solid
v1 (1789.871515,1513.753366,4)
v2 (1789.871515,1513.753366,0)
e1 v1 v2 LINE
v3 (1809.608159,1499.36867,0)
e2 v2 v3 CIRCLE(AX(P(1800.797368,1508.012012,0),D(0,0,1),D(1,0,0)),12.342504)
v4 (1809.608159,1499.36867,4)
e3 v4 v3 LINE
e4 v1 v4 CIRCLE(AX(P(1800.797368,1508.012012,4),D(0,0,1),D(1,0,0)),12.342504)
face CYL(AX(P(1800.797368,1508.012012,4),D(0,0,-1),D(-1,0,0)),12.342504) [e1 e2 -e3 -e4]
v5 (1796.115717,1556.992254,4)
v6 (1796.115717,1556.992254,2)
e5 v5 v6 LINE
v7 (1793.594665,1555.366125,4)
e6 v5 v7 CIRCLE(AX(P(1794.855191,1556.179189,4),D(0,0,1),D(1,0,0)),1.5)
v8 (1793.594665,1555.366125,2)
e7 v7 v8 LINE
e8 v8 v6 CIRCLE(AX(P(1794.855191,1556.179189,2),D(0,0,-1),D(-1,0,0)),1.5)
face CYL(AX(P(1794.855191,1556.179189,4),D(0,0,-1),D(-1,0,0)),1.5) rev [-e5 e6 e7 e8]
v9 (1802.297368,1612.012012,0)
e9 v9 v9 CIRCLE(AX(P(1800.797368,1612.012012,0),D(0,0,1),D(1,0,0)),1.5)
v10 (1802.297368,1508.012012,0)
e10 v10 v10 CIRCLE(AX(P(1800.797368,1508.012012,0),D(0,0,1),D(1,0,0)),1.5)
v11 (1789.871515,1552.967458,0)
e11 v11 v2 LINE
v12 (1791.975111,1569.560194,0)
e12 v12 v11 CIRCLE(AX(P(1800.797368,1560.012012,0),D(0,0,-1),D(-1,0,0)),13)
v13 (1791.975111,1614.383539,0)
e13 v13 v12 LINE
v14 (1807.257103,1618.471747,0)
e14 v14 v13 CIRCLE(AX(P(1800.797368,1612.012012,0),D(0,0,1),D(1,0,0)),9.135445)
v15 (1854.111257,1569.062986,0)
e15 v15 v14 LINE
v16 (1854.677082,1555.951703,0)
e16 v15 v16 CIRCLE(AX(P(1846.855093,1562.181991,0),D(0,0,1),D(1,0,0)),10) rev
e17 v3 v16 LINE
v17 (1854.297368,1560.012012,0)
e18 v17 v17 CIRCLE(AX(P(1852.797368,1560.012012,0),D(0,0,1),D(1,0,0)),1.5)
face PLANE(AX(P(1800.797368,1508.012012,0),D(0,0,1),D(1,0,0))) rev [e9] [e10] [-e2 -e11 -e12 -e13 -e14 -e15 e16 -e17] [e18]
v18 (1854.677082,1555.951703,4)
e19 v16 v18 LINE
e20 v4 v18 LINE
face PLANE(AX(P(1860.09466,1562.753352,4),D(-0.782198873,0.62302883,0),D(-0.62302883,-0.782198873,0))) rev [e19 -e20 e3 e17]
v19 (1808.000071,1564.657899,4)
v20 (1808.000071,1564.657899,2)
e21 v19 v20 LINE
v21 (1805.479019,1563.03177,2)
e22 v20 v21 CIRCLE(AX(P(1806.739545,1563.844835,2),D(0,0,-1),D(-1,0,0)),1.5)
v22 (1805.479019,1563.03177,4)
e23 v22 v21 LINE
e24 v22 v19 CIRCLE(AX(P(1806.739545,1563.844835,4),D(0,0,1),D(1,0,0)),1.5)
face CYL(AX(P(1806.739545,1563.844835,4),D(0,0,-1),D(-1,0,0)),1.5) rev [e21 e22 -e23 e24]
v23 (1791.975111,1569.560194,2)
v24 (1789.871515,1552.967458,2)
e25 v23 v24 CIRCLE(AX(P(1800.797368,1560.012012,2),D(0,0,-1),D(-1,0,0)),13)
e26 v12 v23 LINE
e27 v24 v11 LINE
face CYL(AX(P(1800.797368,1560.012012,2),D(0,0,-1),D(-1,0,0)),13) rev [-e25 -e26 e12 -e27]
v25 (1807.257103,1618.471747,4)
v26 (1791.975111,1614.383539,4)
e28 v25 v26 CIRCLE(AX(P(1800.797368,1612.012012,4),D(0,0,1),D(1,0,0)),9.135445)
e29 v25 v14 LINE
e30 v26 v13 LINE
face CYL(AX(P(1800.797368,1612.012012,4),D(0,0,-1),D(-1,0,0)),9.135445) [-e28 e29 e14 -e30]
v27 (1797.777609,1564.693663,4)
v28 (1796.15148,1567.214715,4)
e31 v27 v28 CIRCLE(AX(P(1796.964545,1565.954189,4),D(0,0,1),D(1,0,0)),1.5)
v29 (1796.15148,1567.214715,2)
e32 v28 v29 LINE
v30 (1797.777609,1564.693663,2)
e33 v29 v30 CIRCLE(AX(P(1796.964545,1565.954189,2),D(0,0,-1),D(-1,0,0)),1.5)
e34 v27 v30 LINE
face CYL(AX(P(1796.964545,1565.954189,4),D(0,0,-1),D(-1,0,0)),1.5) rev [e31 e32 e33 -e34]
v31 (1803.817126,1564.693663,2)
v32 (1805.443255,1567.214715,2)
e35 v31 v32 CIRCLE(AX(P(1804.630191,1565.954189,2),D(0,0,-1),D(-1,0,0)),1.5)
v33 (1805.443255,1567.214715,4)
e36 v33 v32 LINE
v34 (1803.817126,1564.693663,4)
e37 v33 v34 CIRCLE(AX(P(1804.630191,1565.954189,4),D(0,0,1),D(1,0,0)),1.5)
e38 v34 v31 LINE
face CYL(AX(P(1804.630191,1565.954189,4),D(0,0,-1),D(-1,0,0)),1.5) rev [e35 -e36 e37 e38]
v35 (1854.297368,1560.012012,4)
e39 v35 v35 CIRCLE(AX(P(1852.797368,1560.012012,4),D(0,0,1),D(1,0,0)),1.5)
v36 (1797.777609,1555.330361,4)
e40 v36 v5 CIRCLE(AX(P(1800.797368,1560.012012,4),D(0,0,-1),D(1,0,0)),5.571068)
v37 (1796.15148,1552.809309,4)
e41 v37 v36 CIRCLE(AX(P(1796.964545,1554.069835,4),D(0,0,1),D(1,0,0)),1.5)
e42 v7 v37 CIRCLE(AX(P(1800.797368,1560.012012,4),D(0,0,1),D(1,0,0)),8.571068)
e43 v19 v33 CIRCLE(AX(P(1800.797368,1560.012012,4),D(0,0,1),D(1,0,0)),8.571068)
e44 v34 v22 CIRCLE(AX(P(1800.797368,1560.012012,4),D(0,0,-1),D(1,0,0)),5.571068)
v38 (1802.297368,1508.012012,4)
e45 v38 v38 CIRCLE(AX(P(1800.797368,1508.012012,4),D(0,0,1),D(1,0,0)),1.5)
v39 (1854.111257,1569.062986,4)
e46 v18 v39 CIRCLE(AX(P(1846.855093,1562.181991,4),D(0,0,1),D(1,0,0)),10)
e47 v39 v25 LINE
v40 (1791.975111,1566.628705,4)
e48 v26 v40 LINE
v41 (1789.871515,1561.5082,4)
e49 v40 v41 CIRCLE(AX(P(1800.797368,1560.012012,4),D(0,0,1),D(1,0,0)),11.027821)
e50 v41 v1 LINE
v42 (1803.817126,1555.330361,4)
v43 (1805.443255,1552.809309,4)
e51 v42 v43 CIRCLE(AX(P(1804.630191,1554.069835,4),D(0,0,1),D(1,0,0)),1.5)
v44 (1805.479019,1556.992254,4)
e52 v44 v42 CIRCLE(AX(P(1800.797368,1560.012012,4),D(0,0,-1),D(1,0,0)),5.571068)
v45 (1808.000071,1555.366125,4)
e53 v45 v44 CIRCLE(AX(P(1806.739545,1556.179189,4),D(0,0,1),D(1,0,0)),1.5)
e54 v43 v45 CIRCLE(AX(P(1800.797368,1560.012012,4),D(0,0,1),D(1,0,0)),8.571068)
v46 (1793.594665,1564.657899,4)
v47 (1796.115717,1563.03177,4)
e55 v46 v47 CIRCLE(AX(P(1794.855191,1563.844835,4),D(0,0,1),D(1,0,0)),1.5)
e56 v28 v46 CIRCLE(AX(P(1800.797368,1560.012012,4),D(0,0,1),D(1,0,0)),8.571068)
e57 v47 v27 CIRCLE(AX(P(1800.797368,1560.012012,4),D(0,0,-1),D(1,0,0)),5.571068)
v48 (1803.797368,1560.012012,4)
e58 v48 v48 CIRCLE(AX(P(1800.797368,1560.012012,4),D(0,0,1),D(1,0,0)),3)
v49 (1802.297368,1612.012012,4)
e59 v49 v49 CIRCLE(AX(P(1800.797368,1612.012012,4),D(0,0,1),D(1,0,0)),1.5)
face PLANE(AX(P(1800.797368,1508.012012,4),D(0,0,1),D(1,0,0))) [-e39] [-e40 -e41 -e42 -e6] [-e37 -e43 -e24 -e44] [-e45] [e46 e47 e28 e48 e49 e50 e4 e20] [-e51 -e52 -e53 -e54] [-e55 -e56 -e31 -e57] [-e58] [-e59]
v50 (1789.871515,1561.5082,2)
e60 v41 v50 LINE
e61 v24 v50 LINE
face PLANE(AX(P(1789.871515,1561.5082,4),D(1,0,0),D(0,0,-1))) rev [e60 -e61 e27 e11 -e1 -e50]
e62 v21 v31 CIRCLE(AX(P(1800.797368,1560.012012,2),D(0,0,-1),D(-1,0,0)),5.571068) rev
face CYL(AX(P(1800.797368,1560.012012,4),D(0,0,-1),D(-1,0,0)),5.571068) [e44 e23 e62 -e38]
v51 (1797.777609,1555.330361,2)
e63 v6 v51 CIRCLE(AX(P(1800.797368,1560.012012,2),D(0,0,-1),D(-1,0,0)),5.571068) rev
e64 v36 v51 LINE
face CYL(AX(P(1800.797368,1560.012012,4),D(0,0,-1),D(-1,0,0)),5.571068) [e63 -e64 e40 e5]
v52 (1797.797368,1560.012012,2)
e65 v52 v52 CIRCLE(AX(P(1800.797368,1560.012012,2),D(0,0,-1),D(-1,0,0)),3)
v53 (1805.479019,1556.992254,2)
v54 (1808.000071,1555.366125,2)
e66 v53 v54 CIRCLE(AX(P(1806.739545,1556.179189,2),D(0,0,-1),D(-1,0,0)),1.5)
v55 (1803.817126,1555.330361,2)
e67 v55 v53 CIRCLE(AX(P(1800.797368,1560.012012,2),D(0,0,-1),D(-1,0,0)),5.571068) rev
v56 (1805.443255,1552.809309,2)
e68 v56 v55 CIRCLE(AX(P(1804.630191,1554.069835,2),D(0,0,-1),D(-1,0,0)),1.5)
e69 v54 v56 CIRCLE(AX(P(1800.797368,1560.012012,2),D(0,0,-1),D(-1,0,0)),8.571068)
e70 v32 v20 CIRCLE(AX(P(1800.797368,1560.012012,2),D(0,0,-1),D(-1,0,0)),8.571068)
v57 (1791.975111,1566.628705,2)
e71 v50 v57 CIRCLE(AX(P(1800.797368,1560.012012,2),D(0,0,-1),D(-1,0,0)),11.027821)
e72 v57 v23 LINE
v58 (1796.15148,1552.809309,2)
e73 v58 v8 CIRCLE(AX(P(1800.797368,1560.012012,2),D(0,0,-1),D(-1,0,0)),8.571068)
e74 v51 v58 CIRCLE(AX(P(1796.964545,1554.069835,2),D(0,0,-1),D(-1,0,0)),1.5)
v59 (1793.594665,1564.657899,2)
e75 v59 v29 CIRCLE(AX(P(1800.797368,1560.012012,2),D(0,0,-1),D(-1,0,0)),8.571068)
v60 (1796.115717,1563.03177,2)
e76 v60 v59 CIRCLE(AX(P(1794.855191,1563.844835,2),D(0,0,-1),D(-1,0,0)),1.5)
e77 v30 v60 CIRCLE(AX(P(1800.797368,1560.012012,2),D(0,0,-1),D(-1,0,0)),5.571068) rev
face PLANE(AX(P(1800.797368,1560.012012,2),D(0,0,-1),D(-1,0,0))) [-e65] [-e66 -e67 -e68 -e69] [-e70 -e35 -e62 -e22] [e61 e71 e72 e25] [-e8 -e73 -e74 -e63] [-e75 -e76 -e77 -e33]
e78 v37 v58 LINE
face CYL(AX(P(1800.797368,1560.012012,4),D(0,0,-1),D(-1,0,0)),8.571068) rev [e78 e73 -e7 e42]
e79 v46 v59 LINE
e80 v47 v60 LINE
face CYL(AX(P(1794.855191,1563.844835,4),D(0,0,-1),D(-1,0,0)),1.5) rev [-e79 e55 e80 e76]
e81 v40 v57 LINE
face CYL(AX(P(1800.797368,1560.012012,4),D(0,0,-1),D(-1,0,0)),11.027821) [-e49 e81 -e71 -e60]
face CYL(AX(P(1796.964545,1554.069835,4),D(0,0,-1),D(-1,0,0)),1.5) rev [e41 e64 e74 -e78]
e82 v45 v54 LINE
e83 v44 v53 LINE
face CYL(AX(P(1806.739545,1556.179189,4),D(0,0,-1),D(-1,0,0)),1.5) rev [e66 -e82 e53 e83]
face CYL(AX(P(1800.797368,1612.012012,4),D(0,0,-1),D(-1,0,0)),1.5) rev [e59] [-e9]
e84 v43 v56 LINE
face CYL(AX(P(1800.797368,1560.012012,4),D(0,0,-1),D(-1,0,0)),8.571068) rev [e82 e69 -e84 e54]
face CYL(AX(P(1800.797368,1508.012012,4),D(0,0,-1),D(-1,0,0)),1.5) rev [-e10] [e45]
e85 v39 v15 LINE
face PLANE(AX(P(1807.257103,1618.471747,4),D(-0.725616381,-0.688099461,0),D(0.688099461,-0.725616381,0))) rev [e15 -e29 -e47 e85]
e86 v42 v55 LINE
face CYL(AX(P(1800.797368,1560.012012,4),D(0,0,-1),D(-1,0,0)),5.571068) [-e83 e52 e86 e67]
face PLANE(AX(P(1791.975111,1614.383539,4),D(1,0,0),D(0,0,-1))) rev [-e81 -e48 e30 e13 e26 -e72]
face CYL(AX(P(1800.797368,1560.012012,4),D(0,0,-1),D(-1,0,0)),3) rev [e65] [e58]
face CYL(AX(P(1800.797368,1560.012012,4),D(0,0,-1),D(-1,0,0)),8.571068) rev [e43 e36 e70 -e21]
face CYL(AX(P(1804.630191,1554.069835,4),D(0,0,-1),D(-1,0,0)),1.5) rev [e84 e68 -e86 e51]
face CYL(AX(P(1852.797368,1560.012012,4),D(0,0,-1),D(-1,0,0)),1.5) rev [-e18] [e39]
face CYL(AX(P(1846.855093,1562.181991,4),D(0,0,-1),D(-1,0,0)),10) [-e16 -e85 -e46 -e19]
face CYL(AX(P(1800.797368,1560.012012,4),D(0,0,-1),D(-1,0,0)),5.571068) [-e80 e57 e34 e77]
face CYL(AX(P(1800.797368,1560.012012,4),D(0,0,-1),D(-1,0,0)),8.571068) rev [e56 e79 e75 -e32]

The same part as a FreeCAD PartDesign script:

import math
import FreeCAD as App
import Part
import Sketcher


def edges_at(feature, points):
    """Names of the edges that pass closest to the given points."""
    edges = feature.Shape.Edges
    near = lambda p: min(range(len(edges)), key=lambda i: edges[i].distToShape(Part.Vertex(*p))[0])
    return sorted({f"Edge{near(p) + 1}" for p in points})

doc = App.newDocument("Part")
params = doc.addObject("Spreadsheet::Sheet", "Params")
for row, (alias, value) in enumerate([
    ("sketch1_diameter", "3 mm"),
    ("sketch1_diameter2", "6 mm"),
    ("pad1_length", "4 mm"),
    ("sketch2_diameter", "26 mm"),
    ("pocket1_length", "2 mm"),
    ("fillet_radius", "10 mm"),
], start=1):
    params.set(f"A{row}", alias)
    params.set(f"B{row}", "=" + value)
    params.setAlias(f"B{row}", alias)

body = doc.addObject("PartDesign::Body", "Body")

# Sketch on XY plane
sketch1 = body.newObject("Sketcher::SketchObject", "Sketch")
sketch1.AttachmentSupport = (doc.getObject("XY_Plane"), [""])
sketch1.MapMode = "FlatFace"
sketch1.addGeometry(Part.LineSegment(App.Vector(1792, 1614.4, 0), App.Vector(1792, 1566.6, 0)), False)
sketch1.addGeometry(Part.ArcOfCircle(Part.Circle(App.Vector(1800.8, 1560, 0), App.Vector(0, 0, 1), 11), math.radians(143), math.radians(172)), False)
sketch1.addGeometry(Part.LineSegment(App.Vector(1789.9, 1561.5, 0), App.Vector(1789.9, 1513.8, 0)), False)
sketch1.addGeometry(Part.ArcOfCircle(Part.Circle(App.Vector(1800.8, 1508, 0), App.Vector(0, 0, 1), 12.3), math.radians(152), math.radians(316)), False)
sketch1.addGeometry(Part.LineSegment(App.Vector(1809.6, 1499.4, 0), App.Vector(1860.1, 1562.8, 0)), False)
sketch1.addGeometry(Part.LineSegment(App.Vector(1860.1, 1562.8, 0), App.Vector(1807.3, 1618.5, 0)), False)
sketch1.addGeometry(Part.ArcOfCircle(Part.Circle(App.Vector(1800.8, 1612, 0), App.Vector(0, 0, 1), 9.1), math.radians(45), math.radians(165)), False)
sketch1.addGeometry(Part.Circle(App.Vector(1800.8, 1508, 0), App.Vector(0, 0, 1), 1.5), False)
sketch1.addGeometry(Part.ArcOfCircle(Part.Circle(App.Vector(1800.8, 1560, 0), App.Vector(0, 0, 1), 8.6), math.radians(-147), math.radians(-123)), False)
sketch1.addGeometry(Part.ArcOfCircle(Part.Circle(App.Vector(1794.9, 1556.2, 0), App.Vector(0, 0, 1), 1.5), math.radians(33), math.radians(213)), False)
sketch1.addGeometry(Part.ArcOfCircle(Part.Circle(App.Vector(1800.8, 1560, 0), App.Vector(0, 0, 1), 5.6), math.radians(-147), math.radians(-123)), False)
sketch1.addGeometry(Part.ArcOfCircle(Part.Circle(App.Vector(1797, 1554.1, 0), App.Vector(0, 0, 1), 1.5), math.radians(-123), math.radians(57)), False)
sketch1.addGeometry(Part.Circle(App.Vector(1800.8, 1560, 0), App.Vector(0, 0, 1), 3), False)
sketch1.addGeometry(Part.ArcOfCircle(Part.Circle(App.Vector(1800.8, 1560, 0), App.Vector(0, 0, 1), 8.6), math.radians(-57), math.radians(-33)), False)
sketch1.addGeometry(Part.ArcOfCircle(Part.Circle(App.Vector(1804.6, 1554.1, 0), App.Vector(0, 0, 1), 1.5), math.radians(123), math.radians(303)), False)
sketch1.addGeometry(Part.ArcOfCircle(Part.Circle(App.Vector(1800.8, 1560, 0), App.Vector(0, 0, 1), 5.6), math.radians(-57), math.radians(-33)), False)
sketch1.addGeometry(Part.ArcOfCircle(Part.Circle(App.Vector(1806.7, 1556.2, 0), App.Vector(0, 0, 1), 1.5), math.radians(-33), math.radians(147)), False)
sketch1.addGeometry(Part.Circle(App.Vector(1852.8, 1560, 0), App.Vector(0, 0, 1), 1.5), False)
sketch1.addGeometry(Part.ArcOfCircle(Part.Circle(App.Vector(1800.8, 1560, 0), App.Vector(0, 0, 1), 8.6), math.radians(123), math.radians(147)), False)
sketch1.addGeometry(Part.ArcOfCircle(Part.Circle(App.Vector(1797, 1566, 0), App.Vector(0, 0, 1), 1.5), math.radians(-57), math.radians(123)), False)
sketch1.addGeometry(Part.ArcOfCircle(Part.Circle(App.Vector(1800.8, 1560, 0), App.Vector(0, 0, 1), 5.6), math.radians(123), math.radians(147)), False)
sketch1.addGeometry(Part.ArcOfCircle(Part.Circle(App.Vector(1794.9, 1563.8, 0), App.Vector(0, 0, 1), 1.5), math.radians(147), math.radians(327)), False)
sketch1.addGeometry(Part.ArcOfCircle(Part.Circle(App.Vector(1800.8, 1560, 0), App.Vector(0, 0, 1), 8.6), math.radians(33), math.radians(57)), False)
sketch1.addGeometry(Part.ArcOfCircle(Part.Circle(App.Vector(1806.7, 1563.8, 0), App.Vector(0, 0, 1), 1.5), math.radians(-147), math.radians(33)), False)
sketch1.addGeometry(Part.ArcOfCircle(Part.Circle(App.Vector(1800.8, 1560, 0), App.Vector(0, 0, 1), 5.6), math.radians(33), math.radians(57)), False)
sketch1.addGeometry(Part.ArcOfCircle(Part.Circle(App.Vector(1804.6, 1566, 0), App.Vector(0, 0, 1), 1.5), math.radians(57), math.radians(237)), False)
sketch1.addGeometry(Part.Circle(App.Vector(1800.8, 1612, 0), App.Vector(0, 0, 1), 1.5), False)
sketch1.addConstraint(Sketcher.Constraint("Coincident", 0, 2, 1, 1))
sketch1.addConstraint(Sketcher.Constraint("Coincident", 1, 2, 2, 1))
sketch1.addConstraint(Sketcher.Constraint("Coincident", 2, 2, 3, 1))
sketch1.addConstraint(Sketcher.Constraint("Coincident", 3, 2, 4, 1))
sketch1.addConstraint(Sketcher.Constraint("Coincident", 4, 2, 5, 1))
sketch1.addConstraint(Sketcher.Constraint("Coincident", 5, 2, 6, 1))
sketch1.addConstraint(Sketcher.Constraint("Coincident", 6, 2, 0, 1))
sketch1.addConstraint(Sketcher.Constraint("Tangent", 8, 1, 9, 2))
sketch1.addConstraint(Sketcher.Constraint("Tangent", 9, 1, 10, 1))
sketch1.addConstraint(Sketcher.Constraint("Tangent", 10, 2, 11, 2))
sketch1.addConstraint(Sketcher.Constraint("Tangent", 11, 1, 8, 2))
sketch1.addConstraint(Sketcher.Constraint("Tangent", 13, 1, 14, 2))
sketch1.addConstraint(Sketcher.Constraint("Tangent", 14, 1, 15, 1))
sketch1.addConstraint(Sketcher.Constraint("Tangent", 15, 2, 16, 2))
sketch1.addConstraint(Sketcher.Constraint("Tangent", 16, 1, 13, 2))
sketch1.addConstraint(Sketcher.Constraint("Tangent", 18, 1, 19, 2))
sketch1.addConstraint(Sketcher.Constraint("Tangent", 19, 1, 20, 1))
sketch1.addConstraint(Sketcher.Constraint("Tangent", 20, 2, 21, 2))
sketch1.addConstraint(Sketcher.Constraint("Tangent", 21, 1, 18, 2))
sketch1.addConstraint(Sketcher.Constraint("Tangent", 22, 1, 23, 2))
sketch1.addConstraint(Sketcher.Constraint("Tangent", 23, 1, 24, 1))
sketch1.addConstraint(Sketcher.Constraint("Tangent", 24, 2, 25, 2))
sketch1.addConstraint(Sketcher.Constraint("Tangent", 25, 1, 22, 2))
sketch1.addConstraint(Sketcher.Constraint("Vertical", 0))
sketch1.addConstraint(Sketcher.Constraint("Vertical", 2))
sketch1.addConstraint(Sketcher.Constraint("Coincident", 7, 3, 3, 3))
sketch1.addConstraint(Sketcher.Constraint("Coincident", 8, 3, 1, 3))
sketch1.addConstraint(Sketcher.Constraint("Coincident", 10, 3, 1, 3))
sketch1.addConstraint(Sketcher.Constraint("Coincident", 12, 3, 1, 3))
sketch1.addConstraint(Sketcher.Constraint("Coincident", 13, 3, 1, 3))
sketch1.addConstraint(Sketcher.Constraint("Coincident", 15, 3, 1, 3))
sketch1.addConstraint(Sketcher.Constraint("Coincident", 18, 3, 1, 3))
sketch1.addConstraint(Sketcher.Constraint("Coincident", 20, 3, 1, 3))
sketch1.addConstraint(Sketcher.Constraint("Coincident", 22, 3, 1, 3))
sketch1.addConstraint(Sketcher.Constraint("Coincident", 24, 3, 1, 3))
sketch1.addConstraint(Sketcher.Constraint("Coincident", 26, 3, 6, 3))
sketch1.addConstraint(Sketcher.Constraint("Equal", 7, 9))
sketch1.addConstraint(Sketcher.Constraint("Equal", 8, 13))
sketch1.addConstraint(Sketcher.Constraint("Equal", 11, 14))
sketch1.addConstraint(Sketcher.Constraint("Equal", 16, 17))
sketch1.addConstraint(Sketcher.Constraint("Equal", 13, 18))
sketch1.addConstraint(Sketcher.Constraint("Equal", 17, 19))
sketch1.addConstraint(Sketcher.Constraint("Equal", 18, 22))
sketch1.addConstraint(Sketcher.Constraint("Equal", 21, 23))
sketch1.addConstraint(Sketcher.Constraint("Equal", 25, 26))
sketch1.addConstraint(Sketcher.Constraint("Horizontal", 11, 3, 14, 3))
sketch1.addConstraint(Sketcher.Constraint("Horizontal", 9, 3, 16, 3))
sketch1.addConstraint(Sketcher.Constraint("Horizontal", 15, 3, 17, 3))
sketch1.addConstraint(Sketcher.Constraint("Horizontal", 21, 3, 23, 3))
sketch1.addConstraint(Sketcher.Constraint("Horizontal", 19, 3, 25, 3))
sketch1.addConstraint(Sketcher.Constraint("Vertical", 1, 3, 3, 3))
sketch1.addConstraint(Sketcher.Constraint("Vertical", 3, 3, 6, 3))
sketch1.addConstraint(Sketcher.Constraint("Vertical", 11, 3, 19, 3))
sketch1.addConstraint(Sketcher.Constraint("Vertical", 9, 3, 21, 3))
sketch1.addConstraint(Sketcher.Constraint("Equal", 0, 2))
sketch1.addConstraint(Sketcher.Constraint("Diameter", 7, 3.0))
sketch1.addConstraint(Sketcher.Constraint("Diameter", 12, 6.0))
sketch1.addConstraint(Sketcher.Constraint("DistanceY", 3, 3, 1, 3, 52.0))
sketch1.addConstraint(Sketcher.Constraint("DistanceY", 1, 3, 6, 3, 52.0))
sketch1.addConstraint(Sketcher.Constraint("DistanceX", 15, 3, 17, 3, 52.0))
sketch1.addConstraint(Sketcher.Constraint("Radius", 1, 11.027821))
sketch1.addConstraint(Sketcher.Constraint("Radius", 3, 12.342504))
sketch1.addConstraint(Sketcher.Constraint("Radius", 6, 9.135445))
sketch1.addConstraint(Sketcher.Constraint("Radius", 8, 8.571068))
sketch1.addConstraint(Sketcher.Constraint("DistanceY", -1, 1, 1, 2, 1561.5082))
sketch1.addConstraint(Sketcher.Constraint("DistanceY", -1, 1, 21, 1, 1564.657899))
sketch1.addConstraint(Sketcher.Constraint("DistanceY", 0, 2, 0, 1, 47.754834))
sketch1.addConstraint(Sketcher.Constraint("DistanceX", -1, 1, 9, 3, 1794.855191))
sketch1.addConstraint(Sketcher.Constraint("DistanceX", -1, 1, 14, 3, 1804.630191))
sketch1.addConstraint(Sketcher.Constraint("DistanceX", -1, 1, 3, 2, 1809.608159))
sketch1.addConstraint(Sketcher.Constraint("DistanceX", -1, 1, 4, 2, 1860.09466))
sketch1.addConstraint(Sketcher.Constraint("DistanceY", 17, 3, 4, 2, 2.74134))
sketch1.addConstraint(Sketcher.Constraint("DistanceX", 0, 2, 5, 2, 15.281992))
sketch1.setExpression("Constraints[55]", "Params.sketch1_diameter")
sketch1.setExpression("Constraints[56]", "Params.sketch1_diameter2")
pad1 = body.newObject("PartDesign::Pad", "Pad")
pad1.Profile = sketch1
pad1.setExpression("Length", "Params.pad1_length")

# Sketch on XY plane
sketch2 = body.newObject("Sketcher::SketchObject", "Sketch001")
sketch2.AttachmentSupport = (doc.getObject("XY_Plane"), [""])
sketch2.MapMode = "FlatFace"
sketch2.addGeometry(Part.Circle(App.Vector(1801, 1560, 0), App.Vector(0, 0, 1), 13), False)
sketch2.addConstraint(Sketcher.Constraint("Diameter", 0, 26.0))
sketch2.addConstraint(Sketcher.Constraint("DistanceY", -1, 1, 0, 3, 1560.012012))
sketch2.addConstraint(Sketcher.Constraint("DistanceX", -1, 1, 0, 3, 1800.797368))
sketch2.setExpression("Constraints[0]", "Params.sketch2_diameter")
pocket1 = body.newObject("PartDesign::Pocket", "Pocket")
pocket1.Profile = sketch2
pocket1.setExpression("Length", "Params.pocket1_length")
pocket1.Reversed = True
doc.recompute()

fillet = body.newObject("PartDesign::Fillet", "Fillet")
fillet.Base = (pocket1, edges_at(pocket1, [(1860.095, 1562.753, 2)]))
fillet.setExpression("Radius", "Params.fillet_radius")

doc.recompute()
